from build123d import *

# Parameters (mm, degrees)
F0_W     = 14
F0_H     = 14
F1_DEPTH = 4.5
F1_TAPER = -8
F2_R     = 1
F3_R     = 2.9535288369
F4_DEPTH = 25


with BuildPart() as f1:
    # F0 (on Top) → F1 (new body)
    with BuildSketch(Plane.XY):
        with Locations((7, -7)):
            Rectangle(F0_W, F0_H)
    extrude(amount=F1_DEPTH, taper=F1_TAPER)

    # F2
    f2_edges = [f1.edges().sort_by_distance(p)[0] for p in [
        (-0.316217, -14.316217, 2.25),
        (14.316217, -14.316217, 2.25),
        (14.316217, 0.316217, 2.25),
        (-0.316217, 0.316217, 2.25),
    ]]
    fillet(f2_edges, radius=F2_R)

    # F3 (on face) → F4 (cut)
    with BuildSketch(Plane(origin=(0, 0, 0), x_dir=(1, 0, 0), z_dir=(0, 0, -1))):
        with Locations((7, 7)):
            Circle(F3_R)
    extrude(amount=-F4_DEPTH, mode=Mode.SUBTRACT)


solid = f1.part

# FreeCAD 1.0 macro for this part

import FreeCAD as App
import Part
import Sketcher


def edges_at(feature, points):
    """Names of the edges that pass closest to the given points."""
    edges = feature.Shape.Edges
    near = lambda p: min(range(len(edges)), key=lambda i: edges[i].distToShape(Part.Vertex(*p))[0])
    return sorted({f"Edge{near(p) + 1}" for p in points})

doc = App.newDocument("Part")
params = doc.addObject("Spreadsheet::Sheet", "Params")
for row, (alias, value) in enumerate([
    ("sketch1_width", "14 mm"),
    ("pad1_length", "4.5 mm"),
    ("pad1_taper", "8 deg"),
    ("fillet_radius", "1 mm"),
    ("pocket1_length", "25 mm"),
], start=1):
    params.set(f"A{row}", alias)
    params.set(f"B{row}", "=" + value)
    params.setAlias(f"B{row}", alias)

body = doc.addObject("PartDesign::Body", "Body")

# Sketch on XY plane
sketch1 = doc.addObject("Sketcher::SketchObject", "Sketch")
body.addObject(sketch1)
sketch1.AttachmentSupport = (doc.XY_Plane, [""])
sketch1.MapMode = "FlatFace"
sketch1.addGeometry([
    Part.LineSegment(App.Vector(0, 0, 0), App.Vector(0, -14, 0)),
    Part.LineSegment(App.Vector(0, -14, 0), App.Vector(14, -14, 0)),
    Part.LineSegment(App.Vector(14, -14, 0), App.Vector(14, 0, 0)),
    Part.LineSegment(App.Vector(14, 0, 0), App.Vector(0, 0, 0)),
], False)
sketch1.addConstraint([
    Sketcher.Constraint("Coincident", 0, 2, 1, 1),
    Sketcher.Constraint("Coincident", 1, 2, 2, 1),
    Sketcher.Constraint("Coincident", 2, 2, 3, 1),
    Sketcher.Constraint("Coincident", 3, 2, 0, 1),
    Sketcher.Constraint("Vertical", 0),
    Sketcher.Constraint("Horizontal", 1),
    Sketcher.Constraint("Vertical", 2),
    Sketcher.Constraint("Horizontal", 3),
    Sketcher.Constraint("Coincident", 3, 2, -1, 1),
    Sketcher.Constraint("Equal", 3, 0),
    Sketcher.Constraint("DistanceX", 1, 1, 1, 2, 14.0),
])
sketch1.setExpression("Constraints[10]", "Params.sketch1_width")
pad1 = doc.addObject("PartDesign::Pad", "Pad")
body.addObject(pad1)
pad1.Profile = sketch1
pad1.setExpression("Length", "Params.pad1_length")
pad1.setExpression("TaperAngle", "Params.pad1_taper")
doc.recompute()

fillet = doc.addObject("PartDesign::Fillet", "Fillet")
body.addObject(fillet)
fillet.Base = (pad1, edges_at(pad1, [
    (-0.316, -14.316, 2.25),
    (14.316, -14.316, 2.25),
    (14.316, 0.316, 2.25),
    (-0.316, 0.316, 2.25),
]))
fillet.setExpression("Radius", "Params.fillet_radius")

# Sketch on XY plane
sketch2 = doc.addObject("Sketcher::SketchObject", "Sketch001")
body.addObject(sketch2)
sketch2.AttachmentSupport = (doc.XY_Plane, [""])
sketch2.MapMode = "FlatFace"
sketch2.addGeometry(Part.Circle(App.Vector(7, -7, 0), App.Vector(0, 0, 1), 2.953529), False)
sketch2.addConstraint([
    Sketcher.Constraint("DistanceX", -1, 1, 0, 3, 7.0),
    Sketcher.Constraint("DistanceY", 0, 3, -1, 1, 7.0),
    Sketcher.Constraint("Diameter", 0, 5.907058),
])
pocket1 = doc.addObject("PartDesign::Pocket", "Pocket")
body.addObject(pocket1)
pocket1.Profile = sketch2
pocket1.setExpression("Length", "Params.pocket1_length")
pocket1.Reversed = True

doc.recompute()
